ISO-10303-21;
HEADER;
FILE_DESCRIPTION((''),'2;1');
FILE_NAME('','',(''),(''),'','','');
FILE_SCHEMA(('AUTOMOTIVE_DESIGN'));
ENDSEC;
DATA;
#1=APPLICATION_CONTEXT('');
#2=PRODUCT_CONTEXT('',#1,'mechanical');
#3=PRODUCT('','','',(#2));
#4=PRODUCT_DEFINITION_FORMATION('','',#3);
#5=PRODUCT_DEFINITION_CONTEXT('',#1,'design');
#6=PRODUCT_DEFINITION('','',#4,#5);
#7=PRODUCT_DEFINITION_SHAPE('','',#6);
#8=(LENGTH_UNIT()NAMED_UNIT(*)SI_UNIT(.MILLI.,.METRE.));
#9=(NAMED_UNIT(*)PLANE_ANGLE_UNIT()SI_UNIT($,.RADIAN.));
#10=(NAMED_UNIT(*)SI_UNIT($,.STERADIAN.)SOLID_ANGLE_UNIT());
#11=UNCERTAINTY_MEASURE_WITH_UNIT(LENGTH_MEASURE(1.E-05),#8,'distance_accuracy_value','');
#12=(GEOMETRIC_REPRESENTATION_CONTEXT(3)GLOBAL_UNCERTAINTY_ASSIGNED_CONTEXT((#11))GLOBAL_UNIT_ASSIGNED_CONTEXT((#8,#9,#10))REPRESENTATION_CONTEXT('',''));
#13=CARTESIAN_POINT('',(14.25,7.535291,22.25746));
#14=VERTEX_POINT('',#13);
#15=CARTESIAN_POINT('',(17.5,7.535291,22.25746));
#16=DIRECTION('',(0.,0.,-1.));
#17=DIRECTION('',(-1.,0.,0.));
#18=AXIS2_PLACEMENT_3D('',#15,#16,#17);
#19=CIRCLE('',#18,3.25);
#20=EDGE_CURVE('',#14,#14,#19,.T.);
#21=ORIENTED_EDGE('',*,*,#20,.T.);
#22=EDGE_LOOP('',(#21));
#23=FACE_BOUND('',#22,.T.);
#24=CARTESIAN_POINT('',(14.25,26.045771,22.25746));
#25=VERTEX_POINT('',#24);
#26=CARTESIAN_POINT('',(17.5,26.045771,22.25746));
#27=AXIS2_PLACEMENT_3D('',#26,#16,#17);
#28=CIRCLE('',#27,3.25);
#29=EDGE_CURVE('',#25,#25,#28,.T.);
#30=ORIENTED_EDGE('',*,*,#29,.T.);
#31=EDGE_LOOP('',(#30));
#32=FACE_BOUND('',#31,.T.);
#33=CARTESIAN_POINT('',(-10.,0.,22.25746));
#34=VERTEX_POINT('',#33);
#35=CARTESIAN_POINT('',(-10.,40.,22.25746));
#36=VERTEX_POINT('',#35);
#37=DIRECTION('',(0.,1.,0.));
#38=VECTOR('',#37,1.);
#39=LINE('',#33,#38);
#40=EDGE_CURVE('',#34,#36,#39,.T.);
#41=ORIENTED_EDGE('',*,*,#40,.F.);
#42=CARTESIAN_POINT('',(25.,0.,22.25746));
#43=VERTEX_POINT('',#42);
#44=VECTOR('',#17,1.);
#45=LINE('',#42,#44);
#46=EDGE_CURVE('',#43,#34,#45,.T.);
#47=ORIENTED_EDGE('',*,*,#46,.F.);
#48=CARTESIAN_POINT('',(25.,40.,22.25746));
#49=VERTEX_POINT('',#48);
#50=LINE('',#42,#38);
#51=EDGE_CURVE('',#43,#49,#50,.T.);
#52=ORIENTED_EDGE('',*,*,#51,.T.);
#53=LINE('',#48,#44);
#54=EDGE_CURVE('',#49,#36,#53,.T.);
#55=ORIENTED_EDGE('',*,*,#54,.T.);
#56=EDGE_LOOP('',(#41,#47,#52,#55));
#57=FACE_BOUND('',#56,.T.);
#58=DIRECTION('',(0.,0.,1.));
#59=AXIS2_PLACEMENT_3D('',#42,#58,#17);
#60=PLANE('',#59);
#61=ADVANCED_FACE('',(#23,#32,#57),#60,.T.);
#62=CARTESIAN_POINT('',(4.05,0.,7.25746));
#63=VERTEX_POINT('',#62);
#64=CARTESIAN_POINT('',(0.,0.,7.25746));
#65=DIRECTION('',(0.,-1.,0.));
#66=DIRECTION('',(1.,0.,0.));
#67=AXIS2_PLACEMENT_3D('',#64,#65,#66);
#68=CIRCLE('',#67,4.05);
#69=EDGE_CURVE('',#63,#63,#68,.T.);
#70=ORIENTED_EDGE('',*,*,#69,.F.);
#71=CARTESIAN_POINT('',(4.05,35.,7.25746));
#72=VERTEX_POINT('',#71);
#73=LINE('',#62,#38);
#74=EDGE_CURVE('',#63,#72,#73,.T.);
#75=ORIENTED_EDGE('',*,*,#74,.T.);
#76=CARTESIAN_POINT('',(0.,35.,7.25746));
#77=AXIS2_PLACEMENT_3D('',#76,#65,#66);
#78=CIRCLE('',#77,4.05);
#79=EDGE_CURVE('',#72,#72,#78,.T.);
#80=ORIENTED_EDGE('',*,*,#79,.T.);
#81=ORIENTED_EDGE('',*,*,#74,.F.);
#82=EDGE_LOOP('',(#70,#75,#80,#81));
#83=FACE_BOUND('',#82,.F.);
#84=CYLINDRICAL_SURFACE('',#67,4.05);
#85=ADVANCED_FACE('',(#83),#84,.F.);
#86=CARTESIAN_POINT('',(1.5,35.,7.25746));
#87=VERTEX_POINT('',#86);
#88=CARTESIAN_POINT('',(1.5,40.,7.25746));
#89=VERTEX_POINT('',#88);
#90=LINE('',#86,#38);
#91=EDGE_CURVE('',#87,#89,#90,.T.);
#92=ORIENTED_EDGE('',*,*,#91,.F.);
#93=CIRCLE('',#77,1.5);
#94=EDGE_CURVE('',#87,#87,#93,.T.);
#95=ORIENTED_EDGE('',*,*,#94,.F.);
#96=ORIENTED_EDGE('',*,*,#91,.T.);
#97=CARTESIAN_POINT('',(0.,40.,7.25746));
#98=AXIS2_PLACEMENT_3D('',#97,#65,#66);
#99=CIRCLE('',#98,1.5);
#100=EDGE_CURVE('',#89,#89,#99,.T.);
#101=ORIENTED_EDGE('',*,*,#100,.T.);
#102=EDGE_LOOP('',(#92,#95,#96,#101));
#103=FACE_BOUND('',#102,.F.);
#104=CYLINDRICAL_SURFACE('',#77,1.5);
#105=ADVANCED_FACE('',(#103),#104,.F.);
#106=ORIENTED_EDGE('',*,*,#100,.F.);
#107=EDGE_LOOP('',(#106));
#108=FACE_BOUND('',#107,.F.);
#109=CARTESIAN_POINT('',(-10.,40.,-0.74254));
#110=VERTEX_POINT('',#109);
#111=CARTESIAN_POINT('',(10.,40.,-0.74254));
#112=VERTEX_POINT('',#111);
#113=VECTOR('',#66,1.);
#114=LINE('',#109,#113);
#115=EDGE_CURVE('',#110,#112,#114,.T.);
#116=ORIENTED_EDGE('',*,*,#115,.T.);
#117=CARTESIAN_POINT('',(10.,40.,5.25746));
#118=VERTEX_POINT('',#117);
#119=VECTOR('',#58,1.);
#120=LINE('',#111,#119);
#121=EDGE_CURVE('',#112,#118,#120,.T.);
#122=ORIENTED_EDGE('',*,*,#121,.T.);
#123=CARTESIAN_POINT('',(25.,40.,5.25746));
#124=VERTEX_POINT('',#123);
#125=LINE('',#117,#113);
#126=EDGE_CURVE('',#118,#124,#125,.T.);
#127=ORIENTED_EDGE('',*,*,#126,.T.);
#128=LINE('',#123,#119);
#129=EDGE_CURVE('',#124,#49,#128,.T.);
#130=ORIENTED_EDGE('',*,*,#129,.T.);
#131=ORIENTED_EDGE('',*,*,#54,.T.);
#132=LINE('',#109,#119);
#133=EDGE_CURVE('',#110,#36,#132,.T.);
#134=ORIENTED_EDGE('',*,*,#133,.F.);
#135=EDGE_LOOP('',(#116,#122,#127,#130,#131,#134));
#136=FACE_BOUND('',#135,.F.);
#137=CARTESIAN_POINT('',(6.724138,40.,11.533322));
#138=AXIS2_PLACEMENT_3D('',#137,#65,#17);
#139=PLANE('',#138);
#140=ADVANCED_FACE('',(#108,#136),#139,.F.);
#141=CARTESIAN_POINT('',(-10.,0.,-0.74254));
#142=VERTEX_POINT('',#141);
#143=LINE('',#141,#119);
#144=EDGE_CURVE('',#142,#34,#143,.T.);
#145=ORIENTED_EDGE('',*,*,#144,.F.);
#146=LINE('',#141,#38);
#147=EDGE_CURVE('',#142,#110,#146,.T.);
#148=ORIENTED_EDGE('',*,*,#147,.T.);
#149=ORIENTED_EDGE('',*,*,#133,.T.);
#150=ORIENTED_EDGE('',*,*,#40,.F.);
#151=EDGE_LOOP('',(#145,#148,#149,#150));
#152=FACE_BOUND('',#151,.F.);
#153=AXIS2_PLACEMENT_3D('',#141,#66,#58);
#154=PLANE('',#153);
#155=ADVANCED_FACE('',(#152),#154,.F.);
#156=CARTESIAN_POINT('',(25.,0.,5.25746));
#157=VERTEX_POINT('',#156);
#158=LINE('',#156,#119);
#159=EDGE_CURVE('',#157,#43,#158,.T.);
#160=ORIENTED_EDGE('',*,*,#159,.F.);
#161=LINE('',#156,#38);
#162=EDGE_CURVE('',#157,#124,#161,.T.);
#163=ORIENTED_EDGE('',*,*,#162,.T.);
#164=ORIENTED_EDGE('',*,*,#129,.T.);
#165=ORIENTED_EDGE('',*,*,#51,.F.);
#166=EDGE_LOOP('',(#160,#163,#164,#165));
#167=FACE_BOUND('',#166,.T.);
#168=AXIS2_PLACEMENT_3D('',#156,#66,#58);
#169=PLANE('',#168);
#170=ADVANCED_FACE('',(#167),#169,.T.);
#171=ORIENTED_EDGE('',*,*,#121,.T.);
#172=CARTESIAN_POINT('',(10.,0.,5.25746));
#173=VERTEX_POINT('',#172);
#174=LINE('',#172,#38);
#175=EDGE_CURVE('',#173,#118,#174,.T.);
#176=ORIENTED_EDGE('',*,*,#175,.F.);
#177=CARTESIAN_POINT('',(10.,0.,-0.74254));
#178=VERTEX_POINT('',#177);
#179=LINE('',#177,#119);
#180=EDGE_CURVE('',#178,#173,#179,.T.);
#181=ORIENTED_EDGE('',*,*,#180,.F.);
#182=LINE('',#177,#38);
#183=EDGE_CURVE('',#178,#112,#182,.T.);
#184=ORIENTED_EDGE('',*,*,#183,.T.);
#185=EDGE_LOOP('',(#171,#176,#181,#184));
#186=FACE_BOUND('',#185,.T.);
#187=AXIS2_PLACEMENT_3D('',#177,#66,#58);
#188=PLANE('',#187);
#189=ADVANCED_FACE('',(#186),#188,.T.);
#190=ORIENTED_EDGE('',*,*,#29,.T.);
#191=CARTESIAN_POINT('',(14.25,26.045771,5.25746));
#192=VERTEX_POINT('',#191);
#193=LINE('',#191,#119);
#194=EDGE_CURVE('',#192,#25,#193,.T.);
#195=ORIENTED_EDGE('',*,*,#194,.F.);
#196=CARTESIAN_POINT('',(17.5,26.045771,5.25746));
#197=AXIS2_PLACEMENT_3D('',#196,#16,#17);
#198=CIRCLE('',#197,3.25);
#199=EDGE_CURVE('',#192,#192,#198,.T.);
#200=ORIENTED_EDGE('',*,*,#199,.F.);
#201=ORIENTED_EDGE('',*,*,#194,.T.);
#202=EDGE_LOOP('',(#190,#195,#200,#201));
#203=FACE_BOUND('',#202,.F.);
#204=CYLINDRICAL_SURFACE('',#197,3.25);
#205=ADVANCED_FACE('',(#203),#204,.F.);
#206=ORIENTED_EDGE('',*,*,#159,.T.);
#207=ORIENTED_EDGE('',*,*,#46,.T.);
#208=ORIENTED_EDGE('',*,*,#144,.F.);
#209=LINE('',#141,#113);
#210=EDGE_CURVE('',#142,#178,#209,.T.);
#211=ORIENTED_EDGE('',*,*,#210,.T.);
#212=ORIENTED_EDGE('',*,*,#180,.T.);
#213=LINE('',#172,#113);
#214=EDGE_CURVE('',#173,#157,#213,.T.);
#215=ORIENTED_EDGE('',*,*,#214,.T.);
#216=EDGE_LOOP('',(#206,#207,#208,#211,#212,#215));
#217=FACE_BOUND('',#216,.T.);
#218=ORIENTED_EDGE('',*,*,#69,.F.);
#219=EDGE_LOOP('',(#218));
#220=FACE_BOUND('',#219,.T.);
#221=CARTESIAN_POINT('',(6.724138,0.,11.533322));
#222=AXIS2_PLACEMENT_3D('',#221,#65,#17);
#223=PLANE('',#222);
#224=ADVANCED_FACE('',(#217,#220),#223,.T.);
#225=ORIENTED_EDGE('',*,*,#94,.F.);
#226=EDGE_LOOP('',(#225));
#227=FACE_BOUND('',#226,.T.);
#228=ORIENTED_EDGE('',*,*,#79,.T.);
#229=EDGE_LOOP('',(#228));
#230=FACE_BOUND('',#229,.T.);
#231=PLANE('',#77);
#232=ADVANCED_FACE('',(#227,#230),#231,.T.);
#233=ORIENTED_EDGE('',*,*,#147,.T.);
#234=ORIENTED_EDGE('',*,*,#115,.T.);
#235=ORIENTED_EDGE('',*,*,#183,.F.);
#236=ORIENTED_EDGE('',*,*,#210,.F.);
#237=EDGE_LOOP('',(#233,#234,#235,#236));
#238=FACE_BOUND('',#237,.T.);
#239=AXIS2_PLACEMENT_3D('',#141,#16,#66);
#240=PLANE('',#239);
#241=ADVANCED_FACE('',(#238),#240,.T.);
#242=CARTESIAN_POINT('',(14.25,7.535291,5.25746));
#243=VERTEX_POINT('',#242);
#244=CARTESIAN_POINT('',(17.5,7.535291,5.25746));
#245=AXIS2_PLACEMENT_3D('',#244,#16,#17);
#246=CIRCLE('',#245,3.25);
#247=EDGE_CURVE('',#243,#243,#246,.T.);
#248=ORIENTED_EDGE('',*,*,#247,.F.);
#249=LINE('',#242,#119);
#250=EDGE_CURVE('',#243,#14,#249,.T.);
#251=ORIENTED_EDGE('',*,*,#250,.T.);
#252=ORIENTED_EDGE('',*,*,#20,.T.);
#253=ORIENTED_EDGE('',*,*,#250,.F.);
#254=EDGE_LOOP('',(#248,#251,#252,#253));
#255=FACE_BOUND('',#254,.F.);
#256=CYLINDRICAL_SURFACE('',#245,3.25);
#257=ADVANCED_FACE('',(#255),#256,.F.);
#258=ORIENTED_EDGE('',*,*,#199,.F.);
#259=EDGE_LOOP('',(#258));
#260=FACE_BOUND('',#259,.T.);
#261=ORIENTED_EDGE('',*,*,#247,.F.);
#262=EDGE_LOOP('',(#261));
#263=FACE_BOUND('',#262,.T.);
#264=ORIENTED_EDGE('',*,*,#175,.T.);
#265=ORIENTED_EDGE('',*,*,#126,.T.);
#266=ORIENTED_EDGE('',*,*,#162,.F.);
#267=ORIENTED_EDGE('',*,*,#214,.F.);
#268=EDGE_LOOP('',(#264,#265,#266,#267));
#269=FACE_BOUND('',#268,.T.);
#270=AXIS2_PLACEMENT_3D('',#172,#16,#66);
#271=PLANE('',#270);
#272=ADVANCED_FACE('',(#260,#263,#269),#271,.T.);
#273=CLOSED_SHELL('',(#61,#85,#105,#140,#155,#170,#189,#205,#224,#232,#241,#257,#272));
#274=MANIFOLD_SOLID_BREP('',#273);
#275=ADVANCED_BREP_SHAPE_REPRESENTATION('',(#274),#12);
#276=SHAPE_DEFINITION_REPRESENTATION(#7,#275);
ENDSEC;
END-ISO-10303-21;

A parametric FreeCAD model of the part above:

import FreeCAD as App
import Part
import Sketcher

doc = App.newDocument("Part")
body = doc.addObject("PartDesign::Body", "Body")

sketch1 = doc.addObject("Sketcher::SketchObject", "Sketch")
body.addObject(sketch1)
sketch1.AttachmentSupport = (doc.XZ_Plane, [""])
sketch1.MapMode = "FlatFace"
sketch1.addGeometry(Part.LineSegment(App.Vector(-10, -1, 0), App.Vector(-10, 22, 0)), False)
sketch1.addGeometry(Part.LineSegment(App.Vector(-10, 22, 0), App.Vector(25, 22, 0)), False)
sketch1.addGeometry(Part.LineSegment(App.Vector(25, 22, 0), App.Vector(25, 5, 0)), False)
sketch1.addGeometry(Part.LineSegment(App.Vector(25, 5, 0), App.Vector(10, 5, 0)), False)
sketch1.addGeometry(Part.LineSegment(App.Vector(10, 5, 0), App.Vector(10, -1, 0)), False)
sketch1.addGeometry(Part.LineSegment(App.Vector(10, -1, 0), App.Vector(-10, -1, 0)), False)
sketch1.addConstraint(Sketcher.Constraint("Coincident", 0, 2, 1, 1))
sketch1.addConstraint(Sketcher.Constraint("Coincident", 1, 2, 2, 1))
sketch1.addConstraint(Sketcher.Constraint("Coincident", 2, 2, 3, 1))
sketch1.addConstraint(Sketcher.Constraint("Coincident", 3, 2, 4, 1))
sketch1.addConstraint(Sketcher.Constraint("Coincident", 4, 2, 5, 1))
sketch1.addConstraint(Sketcher.Constraint("Coincident", 5, 2, 0, 1))
sketch1.addConstraint(Sketcher.Constraint("Vertical", 0))
sketch1.addConstraint(Sketcher.Constraint("Horizontal", 1))
sketch1.addConstraint(Sketcher.Constraint("Vertical", 2))
sketch1.addConstraint(Sketcher.Constraint("Horizontal", 3))
sketch1.addConstraint(Sketcher.Constraint("Vertical", 4))
sketch1.addConstraint(Sketcher.Constraint("Horizontal", 5))
sketch1.addConstraint(Sketcher.Constraint("DistanceX", 1, 1, 1, 2, 35.0))
sketch1.addConstraint(Sketcher.Constraint("DistanceX", 3, 2, 3, 1, 15.0))
sketch1.addConstraint(Sketcher.Constraint("DistanceY", 0, 1, 0, 2, 23.0))
sketch1.addConstraint(Sketcher.Constraint("DistanceY", 2, 2, 2, 1, 17.0))
sketch1.addConstraint(Sketcher.Constraint("DistanceX", 0, 2, -1, 1, 10.0))
sketch1.addConstraint(Sketcher.Constraint("DistanceY", -1, 1, 0, 2, 22.25746))
pad1 = doc.addObject("PartDesign::Pad", "Pad")
body.addObject(pad1)
pad1.Profile = sketch1
pad1.Length = 40
pad1.Reversed = True

sketch2 = doc.addObject("Sketcher::SketchObject", "Sketch001")
body.addObject(sketch2)
sketch2.AttachmentSupport = (doc.XZ_Plane, [""])
sketch2.MapMode = "FlatFace"
sketch2.addGeometry(Part.Circle(App.Vector(0, 7.3, 0), App.Vector(0, 0, 1), 4), False)
sketch2.addConstraint(Sketcher.Constraint("PointOnObject", 0, 3, -2))
sketch2.addConstraint(Sketcher.Constraint("Diameter", 0, 8.1))
sketch2.addConstraint(Sketcher.Constraint("DistanceY", -1, 1, 0, 3, 7.25746))
pocket1 = doc.addObject("PartDesign::Pocket", "Pocket")
body.addObject(pocket1)
pocket1.Profile = sketch2
pocket1.Length = 35

sketch3 = doc.addObject("Sketcher::SketchObject", "Sketch002")
body.addObject(sketch3)
sketch3.AttachmentSupport = (doc.XY_Plane, [""])
sketch3.MapMode = "FlatFace"
sketch3.AttachmentOffset = App.Placement(App.Vector(0, 0, 5.25746), App.Rotation())
sketch3.addGeometry(Part.Circle(App.Vector(17.5, 26, 0), App.Vector(0, 0, 1), 3.2), False)
sketch3.addConstraint(Sketcher.Constraint("Diameter", 0, 6.5))
sketch3.addConstraint(Sketcher.Constraint("DistanceX", -1, 1, 0, 3, 17.5))
sketch3.addConstraint(Sketcher.Constraint("DistanceY", -1, 1, 0, 3, 26.045771))
pocket2 = doc.addObject("PartDesign::Pocket", "Pocket001")
body.addObject(pocket2)
pocket2.Profile = sketch3
pocket2.Type = "UpToFirst"
pocket2.Reversed = True

sketch4 = doc.addObject("Sketcher::SketchObject", "Sketch003")
body.addObject(sketch4)
sketch4.AttachmentSupport = (doc.XY_Plane, [""])
sketch4.MapMode = "FlatFace"
sketch4.AttachmentOffset = App.Placement(App.Vector(0, 0, 5.25746), App.Rotation())
sketch4.addGeometry(Part.Circle(App.Vector(17.5, 7.5, 0), App.Vector(0, 0, 1), 3.2), False)
sketch4.addConstraint(Sketcher.Constraint("Diameter", 0, 6.5))
sketch4.addConstraint(Sketcher.Constraint("DistanceX", -1, 1, 0, 3, 17.5))
sketch4.addConstraint(Sketcher.Constraint("DistanceY", -1, 1, 0, 3, 7.535291))
pocket3 = doc.addObject("PartDesign::Pocket", "Pocket002")
body.addObject(pocket3)
pocket3.Profile = sketch4
pocket3.Type = "UpToFirst"
pocket3.Reversed = True

sketch5 = doc.addObject("Sketcher::SketchObject", "Sketch004")
body.addObject(sketch5)
sketch5.AttachmentSupport = (doc.XZ_Plane, [""])
sketch5.MapMode = "FlatFace"
sketch5.AttachmentOffset = App.Placement(App.Vector(0, 0, -35), App.Rotation())
sketch5.addGeometry(Part.Circle(App.Vector(0, 7.3, 0), App.Vector(0, 0, 1), 1.5), False)
sketch5.addConstraint(Sketcher.Constraint("PointOnObject", 0, 3, -2))
sketch5.addConstraint(Sketcher.Constraint("Diameter", 0, 3.0))
sketch5.addConstraint(Sketcher.Constraint("DistanceY", -1, 1, 0, 3, 7.25746))
pocket4 = doc.addObject("PartDesign::Pocket", "Pocket003")
body.addObject(pocket4)
pocket4.Profile = sketch5
pocket4.Length = 10

doc.recompute()
